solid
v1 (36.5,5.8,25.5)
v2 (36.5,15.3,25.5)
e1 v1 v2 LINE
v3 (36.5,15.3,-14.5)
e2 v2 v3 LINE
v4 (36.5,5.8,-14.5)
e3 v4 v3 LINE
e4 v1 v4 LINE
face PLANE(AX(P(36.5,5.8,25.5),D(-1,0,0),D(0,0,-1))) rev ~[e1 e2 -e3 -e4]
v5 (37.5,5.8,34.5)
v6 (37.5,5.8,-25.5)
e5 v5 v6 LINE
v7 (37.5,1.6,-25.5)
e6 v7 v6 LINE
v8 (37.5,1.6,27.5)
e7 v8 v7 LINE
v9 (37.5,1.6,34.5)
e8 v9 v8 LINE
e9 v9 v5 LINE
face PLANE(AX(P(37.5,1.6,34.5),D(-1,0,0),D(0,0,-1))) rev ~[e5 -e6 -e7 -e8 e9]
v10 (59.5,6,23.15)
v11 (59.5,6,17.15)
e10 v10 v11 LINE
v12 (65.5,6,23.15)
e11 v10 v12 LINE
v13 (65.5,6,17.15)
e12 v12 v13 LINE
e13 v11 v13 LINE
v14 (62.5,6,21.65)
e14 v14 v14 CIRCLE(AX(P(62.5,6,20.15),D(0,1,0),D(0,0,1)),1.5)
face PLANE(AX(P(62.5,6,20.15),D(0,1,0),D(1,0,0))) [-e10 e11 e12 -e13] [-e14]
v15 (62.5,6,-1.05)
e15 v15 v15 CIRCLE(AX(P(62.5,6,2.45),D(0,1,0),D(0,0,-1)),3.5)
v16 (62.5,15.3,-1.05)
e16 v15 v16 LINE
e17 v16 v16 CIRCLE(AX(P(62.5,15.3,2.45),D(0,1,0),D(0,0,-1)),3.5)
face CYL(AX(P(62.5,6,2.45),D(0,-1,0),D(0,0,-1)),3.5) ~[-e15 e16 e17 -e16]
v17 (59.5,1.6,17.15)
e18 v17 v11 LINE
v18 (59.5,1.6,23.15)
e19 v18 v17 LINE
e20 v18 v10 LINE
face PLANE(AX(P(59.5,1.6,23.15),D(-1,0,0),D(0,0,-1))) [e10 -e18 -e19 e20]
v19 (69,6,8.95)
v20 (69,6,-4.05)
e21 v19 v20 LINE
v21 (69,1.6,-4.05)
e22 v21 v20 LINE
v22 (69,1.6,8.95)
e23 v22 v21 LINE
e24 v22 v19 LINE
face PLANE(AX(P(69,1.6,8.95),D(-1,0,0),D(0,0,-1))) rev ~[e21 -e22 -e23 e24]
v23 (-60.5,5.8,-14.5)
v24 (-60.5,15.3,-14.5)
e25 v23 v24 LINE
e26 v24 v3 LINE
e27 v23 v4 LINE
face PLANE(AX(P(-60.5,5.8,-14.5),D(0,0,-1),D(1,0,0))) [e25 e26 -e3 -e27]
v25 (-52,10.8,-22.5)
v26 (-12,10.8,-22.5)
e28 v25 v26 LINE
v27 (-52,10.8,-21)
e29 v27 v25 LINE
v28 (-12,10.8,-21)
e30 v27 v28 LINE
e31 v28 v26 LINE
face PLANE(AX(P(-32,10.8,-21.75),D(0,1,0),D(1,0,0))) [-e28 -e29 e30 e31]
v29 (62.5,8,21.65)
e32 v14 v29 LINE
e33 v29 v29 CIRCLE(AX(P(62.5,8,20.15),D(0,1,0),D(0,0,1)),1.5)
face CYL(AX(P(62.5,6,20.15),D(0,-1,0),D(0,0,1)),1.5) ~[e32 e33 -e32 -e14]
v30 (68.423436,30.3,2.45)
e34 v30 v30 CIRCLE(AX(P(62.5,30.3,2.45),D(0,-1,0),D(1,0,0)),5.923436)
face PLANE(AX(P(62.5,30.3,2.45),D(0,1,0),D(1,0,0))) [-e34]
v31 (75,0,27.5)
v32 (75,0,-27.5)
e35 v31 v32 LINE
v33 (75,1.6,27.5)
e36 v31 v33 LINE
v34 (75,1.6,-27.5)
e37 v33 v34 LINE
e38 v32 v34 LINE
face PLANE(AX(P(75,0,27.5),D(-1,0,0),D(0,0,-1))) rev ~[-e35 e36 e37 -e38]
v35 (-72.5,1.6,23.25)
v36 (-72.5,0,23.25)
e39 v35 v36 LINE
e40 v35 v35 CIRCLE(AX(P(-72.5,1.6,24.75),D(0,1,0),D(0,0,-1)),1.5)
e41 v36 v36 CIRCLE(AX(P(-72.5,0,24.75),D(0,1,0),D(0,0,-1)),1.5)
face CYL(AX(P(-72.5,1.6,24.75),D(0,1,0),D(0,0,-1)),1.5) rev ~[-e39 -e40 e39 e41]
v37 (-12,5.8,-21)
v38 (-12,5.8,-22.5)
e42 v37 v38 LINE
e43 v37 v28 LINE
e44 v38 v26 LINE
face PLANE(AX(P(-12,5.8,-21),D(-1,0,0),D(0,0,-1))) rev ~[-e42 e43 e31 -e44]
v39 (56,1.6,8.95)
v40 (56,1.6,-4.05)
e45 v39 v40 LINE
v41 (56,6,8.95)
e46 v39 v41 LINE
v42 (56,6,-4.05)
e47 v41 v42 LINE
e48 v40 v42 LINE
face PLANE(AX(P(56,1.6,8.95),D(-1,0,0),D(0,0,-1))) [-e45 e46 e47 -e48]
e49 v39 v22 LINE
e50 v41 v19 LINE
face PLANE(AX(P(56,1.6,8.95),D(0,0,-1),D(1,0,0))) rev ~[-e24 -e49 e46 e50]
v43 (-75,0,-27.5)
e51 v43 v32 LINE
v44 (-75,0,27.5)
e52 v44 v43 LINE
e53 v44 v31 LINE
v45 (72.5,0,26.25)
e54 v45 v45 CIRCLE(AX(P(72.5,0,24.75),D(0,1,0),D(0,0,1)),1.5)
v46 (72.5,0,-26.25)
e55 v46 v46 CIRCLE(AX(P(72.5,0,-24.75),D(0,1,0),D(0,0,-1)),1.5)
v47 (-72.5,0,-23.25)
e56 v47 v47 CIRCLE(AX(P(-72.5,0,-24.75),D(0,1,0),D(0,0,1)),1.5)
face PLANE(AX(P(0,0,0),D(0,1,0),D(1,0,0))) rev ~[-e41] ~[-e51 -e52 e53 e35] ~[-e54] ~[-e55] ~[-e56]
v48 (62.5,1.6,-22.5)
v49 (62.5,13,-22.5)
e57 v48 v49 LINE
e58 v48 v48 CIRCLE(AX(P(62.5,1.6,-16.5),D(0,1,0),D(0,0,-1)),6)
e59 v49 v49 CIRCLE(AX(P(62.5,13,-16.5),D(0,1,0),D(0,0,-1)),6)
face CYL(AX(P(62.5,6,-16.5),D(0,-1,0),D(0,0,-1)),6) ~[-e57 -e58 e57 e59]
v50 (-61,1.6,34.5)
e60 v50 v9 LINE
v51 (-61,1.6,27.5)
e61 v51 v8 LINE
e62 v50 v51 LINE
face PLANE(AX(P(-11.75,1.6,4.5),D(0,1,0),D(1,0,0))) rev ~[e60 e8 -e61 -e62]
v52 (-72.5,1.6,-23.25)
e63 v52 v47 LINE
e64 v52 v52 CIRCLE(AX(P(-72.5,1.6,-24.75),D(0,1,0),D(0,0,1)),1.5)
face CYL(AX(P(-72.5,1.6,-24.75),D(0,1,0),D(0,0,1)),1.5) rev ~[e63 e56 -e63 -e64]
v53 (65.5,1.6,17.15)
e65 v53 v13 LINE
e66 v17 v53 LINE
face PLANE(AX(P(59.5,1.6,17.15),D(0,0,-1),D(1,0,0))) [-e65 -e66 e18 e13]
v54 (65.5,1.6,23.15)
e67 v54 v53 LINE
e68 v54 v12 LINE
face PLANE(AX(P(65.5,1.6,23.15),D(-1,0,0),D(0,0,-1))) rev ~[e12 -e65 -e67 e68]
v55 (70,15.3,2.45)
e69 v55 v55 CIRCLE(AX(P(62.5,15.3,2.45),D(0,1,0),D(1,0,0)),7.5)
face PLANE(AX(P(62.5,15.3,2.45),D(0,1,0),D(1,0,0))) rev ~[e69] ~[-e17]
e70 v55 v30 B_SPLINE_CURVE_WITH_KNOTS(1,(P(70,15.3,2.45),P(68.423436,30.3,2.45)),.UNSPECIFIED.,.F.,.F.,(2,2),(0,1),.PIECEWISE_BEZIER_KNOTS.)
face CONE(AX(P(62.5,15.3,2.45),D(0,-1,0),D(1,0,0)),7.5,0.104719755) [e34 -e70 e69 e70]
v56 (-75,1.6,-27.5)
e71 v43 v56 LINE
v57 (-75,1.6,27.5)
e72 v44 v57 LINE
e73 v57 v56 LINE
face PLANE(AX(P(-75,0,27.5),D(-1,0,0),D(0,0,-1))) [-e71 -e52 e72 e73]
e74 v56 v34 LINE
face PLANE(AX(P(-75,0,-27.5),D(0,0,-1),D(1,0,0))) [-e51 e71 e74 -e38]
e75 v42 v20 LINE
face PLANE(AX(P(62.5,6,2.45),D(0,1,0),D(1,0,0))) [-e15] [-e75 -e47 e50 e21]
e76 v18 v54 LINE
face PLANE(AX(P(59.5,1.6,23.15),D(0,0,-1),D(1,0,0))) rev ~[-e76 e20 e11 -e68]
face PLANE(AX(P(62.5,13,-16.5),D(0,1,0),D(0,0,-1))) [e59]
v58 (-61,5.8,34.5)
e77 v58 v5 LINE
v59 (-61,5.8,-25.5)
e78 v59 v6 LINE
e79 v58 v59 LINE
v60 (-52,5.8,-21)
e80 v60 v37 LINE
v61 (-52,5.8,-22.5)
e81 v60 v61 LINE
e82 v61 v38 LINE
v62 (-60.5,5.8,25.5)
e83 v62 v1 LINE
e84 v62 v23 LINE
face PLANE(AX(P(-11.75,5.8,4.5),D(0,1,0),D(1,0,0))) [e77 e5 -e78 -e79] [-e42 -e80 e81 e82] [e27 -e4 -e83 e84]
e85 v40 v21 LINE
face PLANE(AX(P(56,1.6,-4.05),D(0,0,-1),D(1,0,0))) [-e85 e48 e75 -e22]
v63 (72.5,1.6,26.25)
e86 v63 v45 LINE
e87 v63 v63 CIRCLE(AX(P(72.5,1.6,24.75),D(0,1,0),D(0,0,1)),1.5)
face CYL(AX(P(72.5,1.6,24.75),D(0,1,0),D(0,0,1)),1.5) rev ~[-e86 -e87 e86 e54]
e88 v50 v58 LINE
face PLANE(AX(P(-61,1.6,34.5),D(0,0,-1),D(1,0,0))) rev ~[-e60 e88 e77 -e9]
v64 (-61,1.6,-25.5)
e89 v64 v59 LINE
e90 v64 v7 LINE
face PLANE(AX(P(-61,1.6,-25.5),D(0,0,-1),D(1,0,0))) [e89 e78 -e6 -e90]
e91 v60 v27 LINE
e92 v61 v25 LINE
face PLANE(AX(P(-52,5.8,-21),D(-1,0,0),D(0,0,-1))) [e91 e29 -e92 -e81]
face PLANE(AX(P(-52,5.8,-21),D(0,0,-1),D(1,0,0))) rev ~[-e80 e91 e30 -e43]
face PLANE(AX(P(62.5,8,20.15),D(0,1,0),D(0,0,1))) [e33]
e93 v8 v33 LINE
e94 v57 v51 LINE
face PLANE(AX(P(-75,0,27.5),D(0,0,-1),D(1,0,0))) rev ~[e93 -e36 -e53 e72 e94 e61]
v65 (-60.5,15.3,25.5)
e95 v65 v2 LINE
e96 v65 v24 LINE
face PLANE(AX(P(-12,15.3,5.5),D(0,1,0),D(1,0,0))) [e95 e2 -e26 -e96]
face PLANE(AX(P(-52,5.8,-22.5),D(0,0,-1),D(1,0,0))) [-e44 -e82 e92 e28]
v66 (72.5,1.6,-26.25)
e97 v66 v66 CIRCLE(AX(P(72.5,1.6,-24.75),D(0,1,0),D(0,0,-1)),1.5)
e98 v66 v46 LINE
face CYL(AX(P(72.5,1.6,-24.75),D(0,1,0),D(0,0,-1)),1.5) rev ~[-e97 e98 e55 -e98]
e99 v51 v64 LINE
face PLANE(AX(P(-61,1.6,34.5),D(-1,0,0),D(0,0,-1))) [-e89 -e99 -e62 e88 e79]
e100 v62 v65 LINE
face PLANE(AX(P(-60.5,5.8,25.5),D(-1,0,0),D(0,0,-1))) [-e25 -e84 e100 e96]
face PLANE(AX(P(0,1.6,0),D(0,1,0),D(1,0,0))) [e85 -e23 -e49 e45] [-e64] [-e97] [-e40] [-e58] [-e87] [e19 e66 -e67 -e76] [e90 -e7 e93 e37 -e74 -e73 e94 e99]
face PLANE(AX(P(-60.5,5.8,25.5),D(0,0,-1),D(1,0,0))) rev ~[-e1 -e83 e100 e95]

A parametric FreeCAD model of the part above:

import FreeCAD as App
import Part
import Sketcher
from FreeCAD import Vector


def add_polygon(sketch, points):
    """Adds a closed chain of lines whose ends are joined by coincident constraints."""
    first, n = sketch.GeometryCount, len(points)
    for a, b in zip(points, points[1:] + points[:1]):
        sketch.addGeometry(Part.LineSegment(App.Vector(*a, 0), App.Vector(*b, 0)), False)
    for i in range(n):
        sketch.addConstraint(Sketcher.Constraint("Coincident", first + i, 2, first + (i + 1) % n, 1))

doc = App.newDocument("Part")
body = doc.addObject("PartDesign::Body", "Body")

# Sketch on XZ plane
sketch1 = body.newObject("Sketcher::SketchObject", "Sketch")
sketch1.AttachmentSupport = (doc.getObject("XZ_Plane"), [""])
sketch1.MapMode = "FlatFace"
add_polygon(sketch1, [(-75, -28), (-75, 28), (75, 28), (75, -28)])  # lines 0-3
sketch1.addConstraint(Sketcher.Constraint("Vertical", 0))
sketch1.addConstraint(Sketcher.Constraint("Horizontal", 1))
sketch1.addConstraint(Sketcher.Constraint("Vertical", 2))
sketch1.addConstraint(Sketcher.Constraint("Horizontal", 3))
sketch1.addConstraint(Sketcher.Constraint("Symmetric", 0, 2, 2, 2, -1, 1))
sketch1.addConstraint(Sketcher.Constraint("DistanceX", 1, 1, 1, 2, 150.0))
sketch1.addConstraint(Sketcher.Constraint("DistanceY", 0, 1, 0, 2, 55.0))
pad1 = body.newObject("PartDesign::Pad", "Pad")
pad1.Profile = sketch1
pad1.Length = 1.6
pad1.Reversed = True

# Sketch on XZ plane
sketch2 = body.newObject("Sketcher::SketchObject", "Sketch001")
sketch2.AttachmentSupport = (doc.getObject("XZ_Plane"), [""])
sketch2.MapMode = "FlatFace"
sketch2.AttachmentOffset = App.Placement(Vector(0, 0, -1.6), App.Rotation())
sketch2.addGeometry(Part.Circle(Vector(-72.5, -24.8, 0), Vector(0, 0, 1), 1.5), False)
sketch2.addGeometry(Part.Circle(Vector(-72.5, 24.8, 0), Vector(0, 0, 1), 1.5), False)
sketch2.addGeometry(Part.Circle(Vector(72.5, 24.8, 0), Vector(0, 0, 1), 1.5), False)
sketch2.addGeometry(Part.Circle(Vector(72.5, -24.8, 0), Vector(0, 0, 1), 1.5), False)
sketch2.addConstraint(Sketcher.Constraint("Equal", 0, 1))
sketch2.addConstraint(Sketcher.Constraint("Equal", 1, 2))
sketch2.addConstraint(Sketcher.Constraint("Equal", 2, 3))
sketch2.addConstraint(Sketcher.Constraint("Symmetric", 0, 3, 2, 3, -1, 1))
sketch2.addConstraint(Sketcher.Constraint("Symmetric", 1, 3, 3, 3, -1, 1))
sketch2.addConstraint(Sketcher.Constraint("Symmetric", 1, 3, 2, 3, -2))
sketch2.addConstraint(Sketcher.Constraint("Diameter", 0, 3.0))
sketch2.addConstraint(Sketcher.Constraint("DistanceX", 1, 3, 2, 3, 145.0))
sketch2.addConstraint(Sketcher.Constraint("DistanceY", 0, 3, 1, 3, 49.5))
pocket1 = body.newObject("PartDesign::Pocket", "Pocket")
pocket1.Profile = sketch2
pocket1.Type = "ThroughAll"
pocket1.Reversed = True

# Sketch on XZ plane
sketch3 = body.newObject("Sketcher::SketchObject", "Sketch002")
sketch3.AttachmentSupport = (doc.getObject("XZ_Plane"), [""])
sketch3.MapMode = "FlatFace"
sketch3.AttachmentOffset = App.Placement(Vector(0, 0, -1.6), App.Rotation())
add_polygon(sketch3, [(-61, -26), (-61, 34), (38, 34), (38, -26)])  # lines 0-3
sketch3.addConstraint(Sketcher.Constraint("Vertical", 0))
sketch3.addConstraint(Sketcher.Constraint("Horizontal", 1))
sketch3.addConstraint(Sketcher.Constraint("Vertical", 2))
sketch3.addConstraint(Sketcher.Constraint("Horizontal", 3))
sketch3.addConstraint(Sketcher.Constraint("DistanceY", 0, 1, 0, 2, 60.0))
sketch3.addConstraint(Sketcher.Constraint("DistanceX", 1, 1, 1, 2, 98.5))
sketch3.addConstraint(Sketcher.Constraint("DistanceX", 0, 2, -1, 1, 61.0))
sketch3.addConstraint(Sketcher.Constraint("DistanceY", -1, 1, 0, 2, 34.5))
pad2 = body.newObject("PartDesign::Pad", "Pad001")
pad2.Profile = sketch3
pad2.Length = 4.2
pad2.Reversed = True

# Sketch on XZ plane
sketch4 = body.newObject("Sketcher::SketchObject", "Sketch003")
sketch4.AttachmentSupport = (doc.getObject("XZ_Plane"), [""])
sketch4.MapMode = "FlatFace"
sketch4.AttachmentOffset = App.Placement(Vector(0, 0, -5.8), App.Rotation())
add_polygon(sketch4, [(-60, -14), (-60, 26), (36, 26), (36, -14)])  # lines 0-3
sketch4.addConstraint(Sketcher.Constraint("Vertical", 0))
sketch4.addConstraint(Sketcher.Constraint("Horizontal", 1))
sketch4.addConstraint(Sketcher.Constraint("Vertical", 2))
sketch4.addConstraint(Sketcher.Constraint("Horizontal", 3))
sketch4.addConstraint(Sketcher.Constraint("DistanceX", 1, 1, 1, 2, 97.0))
sketch4.addConstraint(Sketcher.Constraint("DistanceY", 0, 1, 0, 2, 40.0))
sketch4.addConstraint(Sketcher.Constraint("DistanceX", 0, 2, -1, 1, 60.5))
sketch4.addConstraint(Sketcher.Constraint("DistanceY", -1, 1, 0, 2, 25.5))
pad3 = body.newObject("PartDesign::Pad", "Pad002")
pad3.Profile = sketch4
pad3.Length = 9.5
pad3.Reversed = True

# Sketch on XZ plane
sketch5 = body.newObject("Sketcher::SketchObject", "Sketch004")
sketch5.AttachmentSupport = (doc.getObject("XZ_Plane"), [""])
sketch5.MapMode = "FlatFace"
sketch5.AttachmentOffset = App.Placement(Vector(0, 0, -1.6), App.Rotation())
sketch5.addGeometry(Part.Circle(Vector(62, -16, 0), Vector(0, 0, 1), 6), False)  # 0
add_polygon(sketch5, [(56, -4), (56, 9), (69, 9), (69, -4)])  # lines 1-4
add_polygon(sketch5, [(60, 17), (60, 23), (66, 23), (66, 17)])  # lines 5-8
sketch5.addConstraint(Sketcher.Constraint("Vertical", 1))
sketch5.addConstraint(Sketcher.Constraint("Horizontal", 2))
sketch5.addConstraint(Sketcher.Constraint("Vertical", 3))
sketch5.addConstraint(Sketcher.Constraint("Horizontal", 4))
sketch5.addConstraint(Sketcher.Constraint("Vertical", 5))
sketch5.addConstraint(Sketcher.Constraint("Horizontal", 6))
sketch5.addConstraint(Sketcher.Constraint("Vertical", 7))
sketch5.addConstraint(Sketcher.Constraint("Horizontal", 8))
sketch5.addConstraint(Sketcher.Constraint("Equal", 4, 1))
sketch5.addConstraint(Sketcher.Constraint("Equal", 8, 5))
sketch5.addConstraint(Sketcher.Constraint("Diameter", 0, 12.0))
sketch5.addConstraint(Sketcher.Constraint("DistanceX", 2, 1, 2, 2, 13.0))
sketch5.addConstraint(Sketcher.Constraint("DistanceX", 6, 1, 6, 2, 6.0))
sketch5.addConstraint(Sketcher.Constraint("DistanceX", -1, 1, 1, 2, 56.0))
sketch5.addConstraint(Sketcher.Constraint("DistanceX", 5, 2, 0, 3, 3.0))
sketch5.addConstraint(Sketcher.Constraint("DistanceX", -1, 1, 0, 3, 62.5))
sketch5.addConstraint(Sketcher.Constraint("DistanceY", 0, 3, -1, 1, 16.5))
sketch5.addConstraint(Sketcher.Constraint("DistanceY", 1, 2, 5, 2, 14.2))
sketch5.addConstraint(Sketcher.Constraint("DistanceY", -1, 1, 1, 2, 8.95))
pad4 = body.newObject("PartDesign::Pad", "Pad003")
pad4.Profile = sketch5
pad4.Length = 4.4
pad4.Reversed = True

# Sketch on XZ plane
sketch6 = body.newObject("Sketcher::SketchObject", "Sketch005")
sketch6.AttachmentSupport = (doc.getObject("XZ_Plane"), [""])
sketch6.MapMode = "FlatFace"
sketch6.AttachmentOffset = App.Placement(Vector(0, 0, -6), App.Rotation())
sketch6.addGeometry(Part.Circle(Vector(62.5, 20.1, 0), Vector(0, 0, 1), 1.5), False)
sketch6.addConstraint(Sketcher.Constraint("Diameter", 0, 3.0))
sketch6.addConstraint(Sketcher.Constraint("DistanceX", -1, 1, 0, 3, 62.5))
sketch6.addConstraint(Sketcher.Constraint("DistanceY", -1, 1, 0, 3, 20.15))
pad5 = body.newObject("PartDesign::Pad", "Pad004")
pad5.Profile = sketch6
pad5.Length = 2
pad5.Reversed = True

# Sketch on XZ plane
sketch7 = body.newObject("Sketcher::SketchObject", "Sketch006")
sketch7.AttachmentSupport = (doc.getObject("XZ_Plane"), [""])
sketch7.MapMode = "FlatFace"
sketch7.AttachmentOffset = App.Placement(Vector(0, 0, -6), App.Rotation())
sketch7.addGeometry(Part.Circle(Vector(62, -16, 0), Vector(0, 0, 1), 6), False)
sketch7.addConstraint(Sketcher.Constraint("Diameter", 0, 12.0))
sketch7.addConstraint(Sketcher.Constraint("DistanceX", -1, 1, 0, 3, 62.5))
sketch7.addConstraint(Sketcher.Constraint("DistanceY", 0, 3, -1, 1, 16.5))
pad6 = body.newObject("PartDesign::Pad", "Pad005")
pad6.Profile = sketch7
pad6.Length = 7
pad6.Reversed = True

# Sketch on XZ plane
sketch8 = body.newObject("Sketcher::SketchObject", "Sketch007")
sketch8.AttachmentSupport = (doc.getObject("XZ_Plane"), [""])
sketch8.MapMode = "FlatFace"
sketch8.AttachmentOffset = App.Placement(Vector(0, 0, -6), App.Rotation())
sketch8.addGeometry(Part.Circle(Vector(62.5, 2.5, 0), Vector(0, 0, 1), 3.5), False)
sketch8.addConstraint(Sketcher.Constraint("Diameter", 0, 7.0))
sketch8.addConstraint(Sketcher.Constraint("DistanceX", -1, 1, 0, 3, 62.5))
sketch8.addConstraint(Sketcher.Constraint("DistanceY", -1, 1, 0, 3, 2.45))
pad7 = body.newObject("PartDesign::Pad", "Pad006")
pad7.Profile = sketch8
pad7.Length = 9.3
pad7.Reversed = True

# Sketch on XZ plane
sketch9 = body.newObject("Sketcher::SketchObject", "Sketch008")
sketch9.AttachmentSupport = (doc.getObject("XZ_Plane"), [""])
sketch9.MapMode = "FlatFace"
sketch9.AttachmentOffset = App.Placement(Vector(0, 0, -15.3), App.Rotation())
sketch9.addGeometry(Part.Circle(Vector(62, 2, 0), Vector(0, 0, 1), 8), False)
sketch9.addConstraint(Sketcher.Constraint("Diameter", 0, 15.0))
sketch9.addConstraint(Sketcher.Constraint("DistanceX", -1, 1, 0, 3, 62.5))
sketch9.addConstraint(Sketcher.Constraint("DistanceY", -1, 1, 0, 3, 2.45))
pad8 = body.newObject("PartDesign::Pad", "Pad007")
pad8.Profile = sketch9
pad8.Length = 15
pad8.Reversed = True
pad8.TaperAngle = -6

# Sketch on XZ plane
sketch10 = body.newObject("Sketcher::SketchObject", "Sketch009")
sketch10.AttachmentSupport = (doc.getObject("XZ_Plane"), [""])
sketch10.MapMode = "FlatFace"
sketch10.AttachmentOffset = App.Placement(Vector(0, 0, -5.8), App.Rotation())
add_polygon(sketch10, [(-52, -22.5), (-52, -21), (-12, -21), (-12, -22.5)])  # lines 0-3
sketch10.addConstraint(Sketcher.Constraint("Vertical", 0))
sketch10.addConstraint(Sketcher.Constraint("Horizontal", 1))
sketch10.addConstraint(Sketcher.Constraint("Vertical", 2))
sketch10.addConstraint(Sketcher.Constraint("Horizontal", 3))
sketch10.addConstraint(Sketcher.Constraint("DistanceX", 1, 1, 1, 2, 40.0))
sketch10.addConstraint(Sketcher.Constraint("DistanceY", 0, 1, 0, 2, 1.5))
sketch10.addConstraint(Sketcher.Constraint("DistanceX", 0, 2, -1, 1, 52.0))
sketch10.addConstraint(Sketcher.Constraint("DistanceY", 0, 2, -1, 1, 21.0))
pad9 = body.newObject("PartDesign::Pad", "Pad008")
pad9.Profile = sketch10
pad9.Length = 5
pad9.Reversed = True

doc.recompute()
